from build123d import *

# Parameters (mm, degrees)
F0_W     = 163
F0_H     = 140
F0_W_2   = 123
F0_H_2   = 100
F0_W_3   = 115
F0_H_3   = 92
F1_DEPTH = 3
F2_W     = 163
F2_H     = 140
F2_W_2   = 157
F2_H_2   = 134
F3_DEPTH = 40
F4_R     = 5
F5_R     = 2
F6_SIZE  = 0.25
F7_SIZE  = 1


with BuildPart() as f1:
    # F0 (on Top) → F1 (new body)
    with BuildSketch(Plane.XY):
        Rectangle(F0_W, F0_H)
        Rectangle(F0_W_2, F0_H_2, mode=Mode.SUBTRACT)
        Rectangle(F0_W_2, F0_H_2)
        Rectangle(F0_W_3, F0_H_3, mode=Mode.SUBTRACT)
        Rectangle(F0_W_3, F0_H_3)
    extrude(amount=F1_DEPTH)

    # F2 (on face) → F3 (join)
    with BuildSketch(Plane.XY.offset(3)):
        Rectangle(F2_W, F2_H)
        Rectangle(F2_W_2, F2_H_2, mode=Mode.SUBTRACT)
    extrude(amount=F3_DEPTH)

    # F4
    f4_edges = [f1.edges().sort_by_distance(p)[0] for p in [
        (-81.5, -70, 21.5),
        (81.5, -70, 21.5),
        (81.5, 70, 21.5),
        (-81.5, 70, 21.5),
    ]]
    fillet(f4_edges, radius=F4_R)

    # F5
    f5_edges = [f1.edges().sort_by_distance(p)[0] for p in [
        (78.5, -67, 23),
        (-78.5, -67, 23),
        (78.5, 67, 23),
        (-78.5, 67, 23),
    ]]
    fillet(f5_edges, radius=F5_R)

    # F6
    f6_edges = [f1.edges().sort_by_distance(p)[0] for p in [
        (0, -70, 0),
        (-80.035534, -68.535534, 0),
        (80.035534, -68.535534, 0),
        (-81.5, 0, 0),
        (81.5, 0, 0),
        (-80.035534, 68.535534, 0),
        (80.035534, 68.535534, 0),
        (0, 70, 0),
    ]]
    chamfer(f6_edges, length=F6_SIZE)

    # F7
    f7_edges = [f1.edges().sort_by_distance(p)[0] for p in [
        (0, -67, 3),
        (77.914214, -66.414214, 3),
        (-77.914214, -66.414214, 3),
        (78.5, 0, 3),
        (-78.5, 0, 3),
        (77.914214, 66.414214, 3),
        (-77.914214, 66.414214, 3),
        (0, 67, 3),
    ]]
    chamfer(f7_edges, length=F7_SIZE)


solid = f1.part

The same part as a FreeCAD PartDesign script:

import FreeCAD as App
import Part
import Sketcher
Q = App.Units.Quantity


def edges_at(feature, points):
    """Names of the edges that pass closest to the given points."""
    edges = feature.Shape.Edges
    near = lambda p: min(range(len(edges)), key=lambda i: edges[i].distToShape(Part.Vertex(*p))[0])
    return sorted({f"Edge{near(p) + 1}" for p in points})


def add_polygon(sketch, points):
    """Adds a closed chain of lines whose ends are joined by coincident constraints."""
    first, n = sketch.GeometryCount, len(points)
    for a, b in zip(points, points[1:] + points[:1]):
        sketch.addGeometry(Part.LineSegment(App.Vector(*a, 0), App.Vector(*b, 0)), False)
    for i in range(n):
        sketch.addConstraint(Sketcher.Constraint("Coincident", first + i, 2, first + (i + 1) % n, 1))

doc = App.newDocument("Part")
params = doc.addObject("Spreadsheet::Sheet", "Params")
for row, (alias, value) in enumerate([
    ("sketch1_width", "163 mm"),
    ("sketch1_height", "140 mm"),
    ("pad1_length", "3 mm"),
    ("sketch2_width", "163 mm"),
    ("sketch2_width2", "157 mm"),
    ("sketch2_height", "140 mm"),
    ("sketch2_height2", "134 mm"),
    ("pad2_length", "40 mm"),
    ("fillet_radius", "5 mm"),
    ("fillet2_radius", "2 mm"),
    ("chamfer_size", "0.25 mm"),
    ("chamfer2_size", "1 mm"),
], start=1):
    params.set(f"A{row}", alias)
    params.set(f"B{row}", "=" + value)
    params.setAlias(f"B{row}", alias)

body = doc.addObject("PartDesign::Body", "Body")

# Sketch on XY plane
sketch1 = body.newObject("Sketcher::SketchObject", "Sketch")
sketch1.AttachmentSupport = (doc.getObject("XY_Plane"), [""])
sketch1.MapMode = "FlatFace"
add_polygon(sketch1, [(-82, 70), (-82, -70), (82, -70), (82, 70)])  # lines 0-3
sketch1.addConstraint([
    Sketcher.Constraint("Vertical", 0),
    Sketcher.Constraint("Horizontal", 1),
    Sketcher.Constraint("Vertical", 2),
    Sketcher.Constraint("Horizontal", 3),
    Sketcher.Constraint("Symmetric", 0, 2, 2, 2, -1, 1),
    Sketcher.Constraint("DistanceX", 1, 1, 1, 2, Q("163 mm")),
    Sketcher.Constraint("DistanceY", 0, 2, 0, 1, Q("140 mm")),
])
sketch1.setExpression("Constraints[9]", "Params.sketch1_width")
sketch1.setExpression("Constraints[10]", "Params.sketch1_height")
pad1 = body.newObject("PartDesign::Pad", "Pad")
pad1.Profile = sketch1
pad1.setExpression("Length", "Params.pad1_length")

# Sketch on XY plane
sketch2 = body.newObject("Sketcher::SketchObject", "Sketch001")
sketch2.AttachmentSupport = (doc.getObject("XY_Plane"), [""])
sketch2.MapMode = "FlatFace"
sketch2.AttachmentOffset = App.Placement(App.Vector(0, 0, 3), App.Rotation())
add_polygon(sketch2, [(-82, 70), (-82, -70), (82, -70), (82, 70)])  # lines 0-3
add_polygon(sketch2, [(78, -67), (-78, -67), (-78, 67), (78, 67)])  # lines 4-7
sketch2.addConstraint([
    Sketcher.Constraint("Vertical", 0),
    Sketcher.Constraint("Horizontal", 1),
    Sketcher.Constraint("Vertical", 2),
    Sketcher.Constraint("Horizontal", 3),
    Sketcher.Constraint("Horizontal", 4),
    Sketcher.Constraint("Vertical", 5),
    Sketcher.Constraint("Horizontal", 6),
    Sketcher.Constraint("Vertical", 7),
    Sketcher.Constraint("Symmetric", 0, 2, 2, 2, -1, 1),
    Sketcher.Constraint("Symmetric", 4, 2, 6, 2, -1, 1),
    Sketcher.Constraint("DistanceX", 1, 1, 1, 2, Q("163 mm")),
    Sketcher.Constraint("DistanceX", 4, 2, 4, 1, Q("157 mm")),
    Sketcher.Constraint("DistanceY", 0, 2, 0, 1, Q("140 mm")),
    Sketcher.Constraint("DistanceY", 5, 1, 5, 2, Q("134 mm")),
])
sketch2.setExpression("Constraints[18]", "Params.sketch2_width")
sketch2.setExpression("Constraints[19]", "Params.sketch2_width2")
sketch2.setExpression("Constraints[20]", "Params.sketch2_height")
sketch2.setExpression("Constraints[21]", "Params.sketch2_height2")
pad2 = body.newObject("PartDesign::Pad", "Pad001")
pad2.Profile = sketch2
pad2.setExpression("Length", "Params.pad2_length")
doc.recompute()

fillet = body.newObject("PartDesign::Fillet", "Fillet")
fillet.Base = (pad2, edges_at(pad2, [
    (-81.5, -70, 21.5),
    (81.5, -70, 21.5),
    (81.5, 70, 21.5),
    (-81.5, 70, 21.5),
]))
fillet.setExpression("Radius", "Params.fillet_radius")
doc.recompute()

fillet2 = body.newObject("PartDesign::Fillet", "Fillet001")
fillet2.Base = (fillet, edges_at(fillet, [
    (78.5, -67, 23),
    (-78.5, -67, 23),
    (78.5, 67, 23),
    (-78.5, 67, 23),
]))
fillet2.setExpression("Radius", "Params.fillet2_radius")
doc.recompute()

chamfer = body.newObject("PartDesign::Chamfer", "Chamfer")
chamfer.Base = (fillet2, edges_at(fillet2, [
    (0, -70, 0),
    (-80.036, -68.536, 0),
    (80.036, -68.536, 0),
    (-81.5, 0, 0),
    (81.5, 0, 0),
    (-80.036, 68.536, 0),
    (80.036, 68.536, 0),
    (0, 70, 0),
]))
chamfer.setExpression("Size", "Params.chamfer_size")
doc.recompute()

chamfer2 = body.newObject("PartDesign::Chamfer", "Chamfer001")
chamfer2.Base = (chamfer, edges_at(chamfer, [
    (0, -67, 3),
    (77.914, -66.414, 3),
    (-77.914, -66.414, 3),
    (78.5, 0, 3),
    (-78.5, 0, 3),
    (77.914, 66.414, 3),
    (-77.914, 66.414, 3),
    (0, 67, 3),
]))
chamfer2.setExpression("Size", "Params.chamfer2_size")

doc.recompute()
